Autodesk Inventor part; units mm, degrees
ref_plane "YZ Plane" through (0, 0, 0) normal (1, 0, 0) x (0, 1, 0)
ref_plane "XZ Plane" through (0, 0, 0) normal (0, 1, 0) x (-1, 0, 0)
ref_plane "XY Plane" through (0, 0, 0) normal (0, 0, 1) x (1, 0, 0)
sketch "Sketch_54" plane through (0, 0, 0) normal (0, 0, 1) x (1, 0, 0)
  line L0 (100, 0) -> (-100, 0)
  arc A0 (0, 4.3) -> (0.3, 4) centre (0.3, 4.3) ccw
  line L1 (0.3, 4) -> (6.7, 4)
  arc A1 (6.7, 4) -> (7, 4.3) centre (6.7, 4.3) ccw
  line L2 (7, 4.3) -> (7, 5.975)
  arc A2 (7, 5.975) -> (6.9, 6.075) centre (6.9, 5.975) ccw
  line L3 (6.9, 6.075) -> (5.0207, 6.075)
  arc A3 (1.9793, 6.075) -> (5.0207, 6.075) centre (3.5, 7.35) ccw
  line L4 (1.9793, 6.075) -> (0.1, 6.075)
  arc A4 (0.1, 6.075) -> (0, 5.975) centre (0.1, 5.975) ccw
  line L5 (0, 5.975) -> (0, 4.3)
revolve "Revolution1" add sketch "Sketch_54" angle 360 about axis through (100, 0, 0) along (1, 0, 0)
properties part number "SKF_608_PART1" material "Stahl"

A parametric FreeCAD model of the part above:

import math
import FreeCAD as App
import Part
import Sketcher
Q = App.Units.Quantity

doc = App.newDocument("Part")
body = doc.addObject("PartDesign::Body", "Body")

sketch1 = doc.addObject("Sketcher::SketchObject", "Sketch")
body.addObject(sketch1)
sketch1.AttachmentSupport = (doc.XY_Plane, [""])
sketch1.MapMode = "FlatFace"
sketch1.addGeometry([
    Part.LineSegment(App.Vector(0, 5.975, 0), App.Vector(0, 4.3, 0)),
    Part.ArcOfCircle(Part.Circle(App.Vector(0.3, 4.3, 0), App.Vector(0, 0, 1), 0.3), math.radians(180), math.radians(270)),
    Part.LineSegment(App.Vector(0.3, 4, 0), App.Vector(6.7, 4, 0)),
    Part.ArcOfCircle(Part.Circle(App.Vector(6.7, 4.3, 0), App.Vector(0, 0, 1), 0.3), math.radians(-90), math.radians(0)),
    Part.LineSegment(App.Vector(7, 4.3, 0), App.Vector(7, 5.975, 0)),
    Part.ArcOfCircle(Part.Circle(App.Vector(6.9, 5.975, 0), App.Vector(0, 0, 1), 0.1), math.radians(0), math.radians(90)),
    Part.LineSegment(App.Vector(6.9, 6.075, 0), App.Vector(5.0207, 6.075, 0)),
    Part.ArcOfCircle(Part.Circle(App.Vector(3.5, 7.35, 0), App.Vector(0, 0, 1), 1.984478), math.radians(-140.022533), math.radians(-39.977467)),
    Part.LineSegment(App.Vector(1.9793, 6.075, 0), App.Vector(0.1, 6.075, 0)),
    Part.ArcOfCircle(Part.Circle(App.Vector(0.1, 5.975, 0), App.Vector(0, 0, 1), 0.1), math.radians(90), math.radians(180)),
], False)
sketch1.addConstraint([
    Sketcher.Constraint("Tangent", 0, 2, 1, 1),
    Sketcher.Constraint("Tangent", 1, 2, 2, 1),
    Sketcher.Constraint("Tangent", 2, 2, 3, 1),
    Sketcher.Constraint("Tangent", 3, 2, 4, 1),
    Sketcher.Constraint("Tangent", 4, 2, 5, 1),
    Sketcher.Constraint("Tangent", 5, 2, 6, 1),
    Sketcher.Constraint("Coincident", 6, 2, 7, 2),
    Sketcher.Constraint("Coincident", 7, 1, 8, 1),
    Sketcher.Constraint("Tangent", 8, 2, 9, 1),
    Sketcher.Constraint("Tangent", 9, 2, 0, 1),
    Sketcher.Constraint("Vertical", 0),
    Sketcher.Constraint("Horizontal", 2),
    Sketcher.Constraint("Vertical", 4),
    Sketcher.Constraint("Horizontal", 6),
    Sketcher.Constraint("Horizontal", 8),
    Sketcher.Constraint("Equal", 1, 3),
    Sketcher.Constraint("Equal", 5, 9),
    Sketcher.Constraint("PointOnObject", 0, 2, -2),
    Sketcher.Constraint("Horizontal", 5, 3, 9, 3),
    Sketcher.Constraint("Equal", 6, 8),
    Sketcher.Constraint("Radius", 1, Q("0.3 mm")),
    Sketcher.Constraint("Radius", 5, Q("0.1 mm")),
    Sketcher.Constraint("DistanceX", 2, 1, 2, 2, Q("6.4 mm")),
    Sketcher.Constraint("DistanceY", -1, 1, 1, 2, Q("4 mm")),
    Sketcher.Constraint("Radius", 7, Q("1.9845 mm")),
    Sketcher.Constraint("DistanceY", 0, 2, 0, 1, Q("1.675 mm")),
    Sketcher.Constraint("DistanceY", -1, 1, 7, 3, Q("7.35 mm")),
])
revolution = doc.addObject("PartDesign::Revolution", "Revolution")
body.addObject(revolution)
revolution.Profile = sketch1
revolution.ReferenceAxis = (sketch1, ["H_Axis"])
revolution.Angle = 360

doc.recompute()
